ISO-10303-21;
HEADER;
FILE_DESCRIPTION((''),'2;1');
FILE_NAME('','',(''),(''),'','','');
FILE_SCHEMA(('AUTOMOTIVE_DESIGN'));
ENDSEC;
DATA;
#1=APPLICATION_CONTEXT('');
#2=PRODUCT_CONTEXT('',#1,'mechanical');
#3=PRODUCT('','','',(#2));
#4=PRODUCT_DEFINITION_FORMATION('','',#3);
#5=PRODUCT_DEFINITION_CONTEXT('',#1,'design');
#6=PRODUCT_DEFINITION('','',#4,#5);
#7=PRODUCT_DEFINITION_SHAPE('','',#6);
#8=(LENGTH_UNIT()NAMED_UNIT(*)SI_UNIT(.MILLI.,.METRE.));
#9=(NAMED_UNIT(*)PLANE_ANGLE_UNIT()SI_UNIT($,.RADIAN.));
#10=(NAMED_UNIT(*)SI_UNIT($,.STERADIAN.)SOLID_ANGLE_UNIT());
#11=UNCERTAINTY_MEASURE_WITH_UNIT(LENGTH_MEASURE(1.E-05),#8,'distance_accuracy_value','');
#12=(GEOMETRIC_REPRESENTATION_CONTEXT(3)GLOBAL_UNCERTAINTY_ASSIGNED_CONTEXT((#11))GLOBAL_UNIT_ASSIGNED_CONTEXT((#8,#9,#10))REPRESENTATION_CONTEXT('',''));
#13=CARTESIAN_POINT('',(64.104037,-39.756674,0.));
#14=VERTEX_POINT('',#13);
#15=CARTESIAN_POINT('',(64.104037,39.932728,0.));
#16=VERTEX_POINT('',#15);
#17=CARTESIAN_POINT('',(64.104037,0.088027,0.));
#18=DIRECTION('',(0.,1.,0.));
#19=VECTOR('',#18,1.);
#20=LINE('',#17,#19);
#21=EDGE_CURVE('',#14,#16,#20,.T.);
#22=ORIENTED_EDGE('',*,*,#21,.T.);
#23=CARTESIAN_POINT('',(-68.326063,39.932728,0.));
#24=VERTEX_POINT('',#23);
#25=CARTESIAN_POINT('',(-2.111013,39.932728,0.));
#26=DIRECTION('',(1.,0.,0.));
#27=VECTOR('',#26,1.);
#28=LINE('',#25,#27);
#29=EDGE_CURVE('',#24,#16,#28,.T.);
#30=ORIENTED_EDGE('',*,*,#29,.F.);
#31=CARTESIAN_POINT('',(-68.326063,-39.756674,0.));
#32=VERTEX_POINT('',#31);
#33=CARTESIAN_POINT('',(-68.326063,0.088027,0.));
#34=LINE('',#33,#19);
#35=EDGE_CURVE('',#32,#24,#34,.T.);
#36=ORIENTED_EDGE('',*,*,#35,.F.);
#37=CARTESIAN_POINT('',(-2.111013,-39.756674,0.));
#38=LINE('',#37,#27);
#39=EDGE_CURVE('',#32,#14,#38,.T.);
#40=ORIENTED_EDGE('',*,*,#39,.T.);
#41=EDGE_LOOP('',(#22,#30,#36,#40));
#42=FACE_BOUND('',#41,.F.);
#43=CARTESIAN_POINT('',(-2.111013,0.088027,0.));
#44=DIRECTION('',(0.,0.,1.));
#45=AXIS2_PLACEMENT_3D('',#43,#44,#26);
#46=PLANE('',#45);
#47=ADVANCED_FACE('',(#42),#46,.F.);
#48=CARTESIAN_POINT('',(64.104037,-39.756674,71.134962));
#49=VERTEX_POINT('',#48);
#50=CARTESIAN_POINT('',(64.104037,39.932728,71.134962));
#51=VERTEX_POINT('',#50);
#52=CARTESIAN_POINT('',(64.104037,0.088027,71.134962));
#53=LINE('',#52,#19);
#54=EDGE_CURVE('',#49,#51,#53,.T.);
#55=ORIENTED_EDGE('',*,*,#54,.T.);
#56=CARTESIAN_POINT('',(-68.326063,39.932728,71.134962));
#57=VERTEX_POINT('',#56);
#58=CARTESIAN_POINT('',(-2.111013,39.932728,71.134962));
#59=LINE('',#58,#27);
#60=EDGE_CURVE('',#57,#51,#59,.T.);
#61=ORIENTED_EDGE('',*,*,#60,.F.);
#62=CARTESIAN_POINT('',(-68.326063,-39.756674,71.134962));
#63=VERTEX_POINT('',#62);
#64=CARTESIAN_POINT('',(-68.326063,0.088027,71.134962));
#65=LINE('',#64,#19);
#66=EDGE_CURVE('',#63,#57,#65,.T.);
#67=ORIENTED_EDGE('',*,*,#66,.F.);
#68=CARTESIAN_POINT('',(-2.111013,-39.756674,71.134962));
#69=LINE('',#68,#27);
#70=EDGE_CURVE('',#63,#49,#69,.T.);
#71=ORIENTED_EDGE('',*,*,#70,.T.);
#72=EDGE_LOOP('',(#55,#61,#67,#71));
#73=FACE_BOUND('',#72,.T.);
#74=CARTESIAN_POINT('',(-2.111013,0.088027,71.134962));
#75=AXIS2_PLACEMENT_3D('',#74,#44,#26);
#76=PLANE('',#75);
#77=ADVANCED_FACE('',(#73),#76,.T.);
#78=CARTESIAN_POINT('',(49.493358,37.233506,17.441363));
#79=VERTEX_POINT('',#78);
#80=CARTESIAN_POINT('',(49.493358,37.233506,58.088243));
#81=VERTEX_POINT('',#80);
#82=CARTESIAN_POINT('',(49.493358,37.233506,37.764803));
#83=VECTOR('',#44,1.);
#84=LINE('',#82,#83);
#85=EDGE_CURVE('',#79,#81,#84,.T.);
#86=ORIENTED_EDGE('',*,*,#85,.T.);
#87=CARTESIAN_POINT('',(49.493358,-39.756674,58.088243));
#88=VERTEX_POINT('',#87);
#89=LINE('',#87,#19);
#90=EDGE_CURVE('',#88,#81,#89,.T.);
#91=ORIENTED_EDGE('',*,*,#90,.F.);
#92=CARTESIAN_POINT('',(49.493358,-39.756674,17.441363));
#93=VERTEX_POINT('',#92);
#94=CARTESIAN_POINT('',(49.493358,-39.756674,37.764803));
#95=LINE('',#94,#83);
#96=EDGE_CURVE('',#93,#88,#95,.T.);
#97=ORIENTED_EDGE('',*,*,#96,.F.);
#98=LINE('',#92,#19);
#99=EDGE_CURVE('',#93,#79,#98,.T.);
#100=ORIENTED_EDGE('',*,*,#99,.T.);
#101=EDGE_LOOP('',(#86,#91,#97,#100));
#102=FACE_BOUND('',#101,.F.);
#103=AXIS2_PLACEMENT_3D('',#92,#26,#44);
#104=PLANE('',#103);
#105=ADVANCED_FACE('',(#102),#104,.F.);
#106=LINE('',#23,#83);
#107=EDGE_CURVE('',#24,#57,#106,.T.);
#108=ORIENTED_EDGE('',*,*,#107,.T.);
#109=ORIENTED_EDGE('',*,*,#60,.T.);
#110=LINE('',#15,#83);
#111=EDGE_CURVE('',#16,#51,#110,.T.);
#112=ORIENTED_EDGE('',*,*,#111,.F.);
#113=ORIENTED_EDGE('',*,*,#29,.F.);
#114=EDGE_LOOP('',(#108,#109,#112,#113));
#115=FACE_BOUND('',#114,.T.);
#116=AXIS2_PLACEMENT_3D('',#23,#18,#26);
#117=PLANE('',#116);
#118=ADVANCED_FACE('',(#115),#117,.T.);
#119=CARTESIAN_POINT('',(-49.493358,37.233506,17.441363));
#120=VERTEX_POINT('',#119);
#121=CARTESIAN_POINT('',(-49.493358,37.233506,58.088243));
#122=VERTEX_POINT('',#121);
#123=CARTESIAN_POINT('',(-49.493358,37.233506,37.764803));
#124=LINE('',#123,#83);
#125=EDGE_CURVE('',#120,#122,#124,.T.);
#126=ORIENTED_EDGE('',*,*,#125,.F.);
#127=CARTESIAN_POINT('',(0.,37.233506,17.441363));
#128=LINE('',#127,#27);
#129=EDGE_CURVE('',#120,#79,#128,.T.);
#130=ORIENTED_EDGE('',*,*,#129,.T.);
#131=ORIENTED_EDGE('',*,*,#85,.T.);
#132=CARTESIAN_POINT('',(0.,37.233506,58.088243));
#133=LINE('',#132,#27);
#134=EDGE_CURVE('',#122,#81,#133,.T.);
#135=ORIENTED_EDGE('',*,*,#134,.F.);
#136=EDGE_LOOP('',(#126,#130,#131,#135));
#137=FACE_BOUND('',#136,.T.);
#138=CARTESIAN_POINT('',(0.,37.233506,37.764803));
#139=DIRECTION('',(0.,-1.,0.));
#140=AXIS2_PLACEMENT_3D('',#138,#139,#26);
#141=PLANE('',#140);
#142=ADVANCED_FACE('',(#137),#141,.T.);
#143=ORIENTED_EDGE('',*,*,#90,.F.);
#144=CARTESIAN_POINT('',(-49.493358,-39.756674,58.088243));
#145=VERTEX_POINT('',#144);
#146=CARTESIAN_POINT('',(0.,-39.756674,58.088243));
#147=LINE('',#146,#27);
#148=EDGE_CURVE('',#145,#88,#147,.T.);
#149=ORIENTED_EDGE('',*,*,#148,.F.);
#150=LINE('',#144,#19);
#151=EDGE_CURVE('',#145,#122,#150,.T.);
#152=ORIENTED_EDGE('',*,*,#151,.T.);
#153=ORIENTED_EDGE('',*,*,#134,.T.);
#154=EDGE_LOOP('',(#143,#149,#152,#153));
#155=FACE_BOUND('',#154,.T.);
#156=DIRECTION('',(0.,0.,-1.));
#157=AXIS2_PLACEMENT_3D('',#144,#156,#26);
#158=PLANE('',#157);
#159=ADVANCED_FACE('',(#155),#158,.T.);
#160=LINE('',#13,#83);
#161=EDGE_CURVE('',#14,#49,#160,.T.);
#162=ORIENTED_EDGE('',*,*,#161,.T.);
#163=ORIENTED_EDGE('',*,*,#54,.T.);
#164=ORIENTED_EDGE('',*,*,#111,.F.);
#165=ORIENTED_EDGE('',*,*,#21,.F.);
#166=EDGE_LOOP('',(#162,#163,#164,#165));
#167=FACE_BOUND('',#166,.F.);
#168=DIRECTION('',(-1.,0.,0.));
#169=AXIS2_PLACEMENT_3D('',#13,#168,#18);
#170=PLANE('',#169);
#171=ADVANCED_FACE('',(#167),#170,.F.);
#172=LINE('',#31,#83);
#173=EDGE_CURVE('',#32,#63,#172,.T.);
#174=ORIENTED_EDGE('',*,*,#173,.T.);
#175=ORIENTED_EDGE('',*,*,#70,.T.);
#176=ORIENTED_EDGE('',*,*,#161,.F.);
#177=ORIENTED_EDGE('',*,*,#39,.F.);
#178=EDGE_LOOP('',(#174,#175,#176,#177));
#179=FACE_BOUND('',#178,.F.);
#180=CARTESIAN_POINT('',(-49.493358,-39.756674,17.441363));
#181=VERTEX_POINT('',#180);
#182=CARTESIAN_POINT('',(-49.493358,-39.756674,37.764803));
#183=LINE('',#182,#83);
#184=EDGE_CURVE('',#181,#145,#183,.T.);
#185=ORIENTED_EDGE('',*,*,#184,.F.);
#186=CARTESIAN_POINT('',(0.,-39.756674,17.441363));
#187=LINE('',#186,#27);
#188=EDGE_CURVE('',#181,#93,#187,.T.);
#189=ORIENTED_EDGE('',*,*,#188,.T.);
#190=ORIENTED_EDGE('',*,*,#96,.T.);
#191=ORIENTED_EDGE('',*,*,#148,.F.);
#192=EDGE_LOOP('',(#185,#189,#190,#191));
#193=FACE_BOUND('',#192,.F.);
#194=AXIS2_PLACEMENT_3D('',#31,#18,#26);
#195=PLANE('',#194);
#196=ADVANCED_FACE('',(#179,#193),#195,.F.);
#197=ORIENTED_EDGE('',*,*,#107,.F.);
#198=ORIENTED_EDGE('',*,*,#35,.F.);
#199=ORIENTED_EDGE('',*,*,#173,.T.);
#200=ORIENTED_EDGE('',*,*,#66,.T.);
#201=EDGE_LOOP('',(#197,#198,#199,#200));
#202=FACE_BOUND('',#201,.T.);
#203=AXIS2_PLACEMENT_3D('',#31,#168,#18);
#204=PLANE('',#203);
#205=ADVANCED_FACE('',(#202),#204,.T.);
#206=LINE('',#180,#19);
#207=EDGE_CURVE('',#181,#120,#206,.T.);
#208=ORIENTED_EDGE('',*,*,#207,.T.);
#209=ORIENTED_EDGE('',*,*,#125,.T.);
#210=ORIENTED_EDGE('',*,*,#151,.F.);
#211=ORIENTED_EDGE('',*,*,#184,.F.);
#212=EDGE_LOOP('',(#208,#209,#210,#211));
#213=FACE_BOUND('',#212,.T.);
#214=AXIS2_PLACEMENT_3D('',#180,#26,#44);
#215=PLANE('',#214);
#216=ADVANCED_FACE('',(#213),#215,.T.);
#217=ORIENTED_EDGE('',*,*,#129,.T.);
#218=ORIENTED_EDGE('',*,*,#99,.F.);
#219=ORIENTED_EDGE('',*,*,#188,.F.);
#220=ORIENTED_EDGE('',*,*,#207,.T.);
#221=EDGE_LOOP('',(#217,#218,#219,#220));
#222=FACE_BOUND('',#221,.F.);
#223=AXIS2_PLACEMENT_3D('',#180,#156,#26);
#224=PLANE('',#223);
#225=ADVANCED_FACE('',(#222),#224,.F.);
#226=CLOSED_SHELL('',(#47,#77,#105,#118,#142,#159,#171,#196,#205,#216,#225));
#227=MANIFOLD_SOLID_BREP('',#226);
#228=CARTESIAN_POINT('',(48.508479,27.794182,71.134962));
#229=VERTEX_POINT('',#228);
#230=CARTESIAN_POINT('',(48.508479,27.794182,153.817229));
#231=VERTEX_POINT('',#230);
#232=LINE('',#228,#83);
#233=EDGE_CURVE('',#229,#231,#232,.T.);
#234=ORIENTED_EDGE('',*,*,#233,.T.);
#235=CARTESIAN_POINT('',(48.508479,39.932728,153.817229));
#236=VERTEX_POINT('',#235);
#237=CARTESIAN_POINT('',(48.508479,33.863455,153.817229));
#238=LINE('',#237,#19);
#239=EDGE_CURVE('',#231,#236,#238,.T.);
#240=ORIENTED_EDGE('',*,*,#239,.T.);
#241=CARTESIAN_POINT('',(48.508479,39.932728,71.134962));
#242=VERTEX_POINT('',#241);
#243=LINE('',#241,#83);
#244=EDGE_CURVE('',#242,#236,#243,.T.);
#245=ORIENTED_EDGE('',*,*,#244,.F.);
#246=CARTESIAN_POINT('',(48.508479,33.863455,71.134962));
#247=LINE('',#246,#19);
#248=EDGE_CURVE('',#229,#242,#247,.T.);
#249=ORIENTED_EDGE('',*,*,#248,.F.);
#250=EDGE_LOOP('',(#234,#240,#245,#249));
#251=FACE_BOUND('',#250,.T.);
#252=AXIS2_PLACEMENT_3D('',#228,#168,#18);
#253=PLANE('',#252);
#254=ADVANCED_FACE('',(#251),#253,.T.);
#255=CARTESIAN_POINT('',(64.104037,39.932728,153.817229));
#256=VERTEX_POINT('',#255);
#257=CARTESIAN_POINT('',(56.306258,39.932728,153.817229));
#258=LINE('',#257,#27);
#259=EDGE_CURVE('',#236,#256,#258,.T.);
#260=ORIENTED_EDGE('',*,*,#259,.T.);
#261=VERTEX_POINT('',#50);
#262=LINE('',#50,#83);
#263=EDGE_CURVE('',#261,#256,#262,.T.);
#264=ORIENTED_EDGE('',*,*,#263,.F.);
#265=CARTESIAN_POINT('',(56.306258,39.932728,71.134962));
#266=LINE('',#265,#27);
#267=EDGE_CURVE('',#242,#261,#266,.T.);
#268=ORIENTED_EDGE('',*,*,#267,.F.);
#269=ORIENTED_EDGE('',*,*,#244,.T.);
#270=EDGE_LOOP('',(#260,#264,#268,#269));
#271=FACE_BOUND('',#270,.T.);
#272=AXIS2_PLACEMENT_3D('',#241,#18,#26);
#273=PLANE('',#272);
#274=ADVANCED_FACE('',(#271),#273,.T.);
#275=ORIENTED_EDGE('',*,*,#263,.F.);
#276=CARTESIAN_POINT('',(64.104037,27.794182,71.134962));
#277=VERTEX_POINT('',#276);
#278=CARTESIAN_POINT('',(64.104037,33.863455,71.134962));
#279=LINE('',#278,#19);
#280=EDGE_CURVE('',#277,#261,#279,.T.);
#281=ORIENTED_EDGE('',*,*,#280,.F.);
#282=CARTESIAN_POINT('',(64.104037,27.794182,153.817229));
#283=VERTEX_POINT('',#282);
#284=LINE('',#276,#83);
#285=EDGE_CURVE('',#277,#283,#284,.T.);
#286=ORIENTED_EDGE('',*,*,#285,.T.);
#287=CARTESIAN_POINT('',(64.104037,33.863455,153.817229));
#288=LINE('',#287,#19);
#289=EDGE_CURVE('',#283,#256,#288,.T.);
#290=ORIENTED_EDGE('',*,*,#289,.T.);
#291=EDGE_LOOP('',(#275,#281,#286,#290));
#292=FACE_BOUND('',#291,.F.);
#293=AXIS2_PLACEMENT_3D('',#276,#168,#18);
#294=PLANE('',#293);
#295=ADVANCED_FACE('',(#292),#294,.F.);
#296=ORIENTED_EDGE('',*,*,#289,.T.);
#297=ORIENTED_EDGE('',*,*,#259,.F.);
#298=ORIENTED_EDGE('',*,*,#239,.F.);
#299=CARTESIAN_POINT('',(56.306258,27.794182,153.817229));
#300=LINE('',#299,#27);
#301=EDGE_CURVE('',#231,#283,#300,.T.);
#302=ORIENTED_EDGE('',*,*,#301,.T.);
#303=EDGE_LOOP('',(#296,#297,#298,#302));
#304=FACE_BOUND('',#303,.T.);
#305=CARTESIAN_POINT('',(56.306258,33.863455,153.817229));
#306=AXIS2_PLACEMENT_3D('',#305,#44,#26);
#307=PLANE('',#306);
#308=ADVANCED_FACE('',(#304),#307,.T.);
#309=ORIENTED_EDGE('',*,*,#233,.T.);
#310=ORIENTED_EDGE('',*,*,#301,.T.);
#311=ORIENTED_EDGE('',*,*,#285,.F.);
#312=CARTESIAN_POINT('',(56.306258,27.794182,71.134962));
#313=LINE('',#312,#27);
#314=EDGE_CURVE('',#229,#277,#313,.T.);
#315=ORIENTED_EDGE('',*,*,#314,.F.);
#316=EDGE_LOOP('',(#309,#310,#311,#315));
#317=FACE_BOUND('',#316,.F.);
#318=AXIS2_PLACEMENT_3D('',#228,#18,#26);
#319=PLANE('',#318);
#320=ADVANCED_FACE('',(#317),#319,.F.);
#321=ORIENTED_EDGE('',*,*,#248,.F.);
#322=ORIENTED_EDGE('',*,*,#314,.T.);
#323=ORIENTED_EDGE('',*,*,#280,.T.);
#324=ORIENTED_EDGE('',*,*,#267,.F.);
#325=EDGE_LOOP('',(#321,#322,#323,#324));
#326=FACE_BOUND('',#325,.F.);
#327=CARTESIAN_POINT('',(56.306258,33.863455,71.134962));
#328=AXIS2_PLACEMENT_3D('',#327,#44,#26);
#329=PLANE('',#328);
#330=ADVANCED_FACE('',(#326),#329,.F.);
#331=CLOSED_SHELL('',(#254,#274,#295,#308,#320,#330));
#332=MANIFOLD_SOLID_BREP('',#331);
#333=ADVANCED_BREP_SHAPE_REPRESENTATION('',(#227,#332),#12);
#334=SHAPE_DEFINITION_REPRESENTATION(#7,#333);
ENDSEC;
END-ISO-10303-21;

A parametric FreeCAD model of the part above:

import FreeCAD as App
import Part
import Sketcher
from FreeCAD import Vector

doc = App.newDocument("Part")
params = doc.addObject("Spreadsheet::Sheet", "Params")
for row, (alias, value) in enumerate([
    ("pad1_length", "71.134962 mm"),
    ("pocket1_length", "76.99018 mm"),
    ("pad2_length", "82.682267 mm"),
], start=1):
    params.set(f"A{row}", alias)
    params.set(f"B{row}", "=" + value)
    params.setAlias(f"B{row}", alias)

body = doc.addObject("PartDesign::Body", "Body")

sketch1 = body.newObject("Sketcher::SketchObject", "Sketch")
sketch1.AttachmentSupport = (doc.getObject("XY_Plane"), [""])
sketch1.MapMode = "FlatFace"
sketch1.addGeometry([
    Part.LineSegment(Vector(-68, 40, 0), Vector(-68, -40, 0)),
    Part.LineSegment(Vector(-68, -40, 0), Vector(64, -40, 0)),
    Part.LineSegment(Vector(64, -40, 0), Vector(64, 40, 0)),
    Part.LineSegment(Vector(64, 40, 0), Vector(-68, 40, 0)),
], False)
sketch1.addConstraint([
    Sketcher.Constraint("Coincident", 0, 2, 1, 1),
    Sketcher.Constraint("Coincident", 1, 2, 2, 1),
    Sketcher.Constraint("Coincident", 2, 2, 3, 1),
    Sketcher.Constraint("Coincident", 3, 2, 0, 1),
    Sketcher.Constraint("Vertical", 0),
    Sketcher.Constraint("Horizontal", 1),
    Sketcher.Constraint("Vertical", 2),
    Sketcher.Constraint("Horizontal", 3),
    Sketcher.Constraint("DistanceX", 1, 1, 1, 2, 132.4301),
    Sketcher.Constraint("DistanceY", 0, 2, 0, 1, 79.689402),
    Sketcher.Constraint("DistanceX", 0, 2, -1, 1, 68.326063),
    Sketcher.Constraint("DistanceY", 0, 2, -1, 1, 39.756674),
])
pad1 = body.newObject("PartDesign::Pad", "Pad")
pad1.Profile = sketch1
pad1.setExpression("Length", "Params.pad1_length")

sketch2 = body.newObject("Sketcher::SketchObject", "Sketch001")
sketch2.AttachmentSupport = (doc.getObject("XZ_Plane"), [""])
sketch2.MapMode = "FlatFace"
sketch2.AttachmentOffset = App.Placement(Vector(0, 0, 39.756674), App.Rotation())
sketch2.addGeometry([
    Part.LineSegment(Vector(-49, 58, 0), Vector(-49, 17, 0)),
    Part.LineSegment(Vector(-49, 17, 0), Vector(49, 17, 0)),
    Part.LineSegment(Vector(49, 17, 0), Vector(49, 58, 0)),
    Part.LineSegment(Vector(49, 58, 0), Vector(-49, 58, 0)),
], False)
sketch2.addConstraint([
    Sketcher.Constraint("Coincident", 0, 2, 1, 1),
    Sketcher.Constraint("Coincident", 1, 2, 2, 1),
    Sketcher.Constraint("Coincident", 2, 2, 3, 1),
    Sketcher.Constraint("Coincident", 3, 2, 0, 1),
    Sketcher.Constraint("Vertical", 0),
    Sketcher.Constraint("Horizontal", 1),
    Sketcher.Constraint("Vertical", 2),
    Sketcher.Constraint("Horizontal", 3),
    Sketcher.Constraint("DistanceY", 0, 2, 0, 1, 40.646881),
    Sketcher.Constraint("DistanceX", 1, 1, 1, 2, 98.986716),
    Sketcher.Constraint("DistanceX", 0, 2, -1, 1, 49.493358),
    Sketcher.Constraint("DistanceY", -1, 1, 0, 2, 17.441363),
])
pocket1 = body.newObject("PartDesign::Pocket", "Pocket")
pocket1.Profile = sketch2
pocket1.setExpression("Length", "Params.pocket1_length")
body2 = doc.addObject("PartDesign::Body", "Body001")

sketch3 = body2.newObject("Sketcher::SketchObject", "Sketch002")
sketch3.AttachmentSupport = (doc.getObject("XY_Plane001"), [""])
sketch3.MapMode = "FlatFace"
sketch3.AttachmentOffset = App.Placement(Vector(0, 0, 71.134962), App.Rotation())
sketch3.addGeometry([
    Part.LineSegment(Vector(49, 40, 0), Vector(49, 28, 0)),
    Part.LineSegment(Vector(49, 28, 0), Vector(64, 28, 0)),
    Part.LineSegment(Vector(64, 28, 0), Vector(64, 40, 0)),
    Part.LineSegment(Vector(64, 40, 0), Vector(49, 40, 0)),
], False)
sketch3.addConstraint([
    Sketcher.Constraint("Coincident", 0, 2, 1, 1),
    Sketcher.Constraint("Coincident", 1, 2, 2, 1),
    Sketcher.Constraint("Coincident", 2, 2, 3, 1),
    Sketcher.Constraint("Coincident", 3, 2, 0, 1),
    Sketcher.Constraint("Vertical", 0),
    Sketcher.Constraint("Horizontal", 1),
    Sketcher.Constraint("Vertical", 2),
    Sketcher.Constraint("Horizontal", 3),
    Sketcher.Constraint("DistanceX", 1, 1, 1, 2, 15.595557),
    Sketcher.Constraint("DistanceY", 0, 2, 0, 1, 12.138546),
    Sketcher.Constraint("DistanceX", -1, 1, 0, 2, 48.508479),
    Sketcher.Constraint("DistanceY", -1, 1, 0, 2, 27.794182),
])
pad2 = body2.newObject("PartDesign::Pad", "Pad001")
pad2.Profile = sketch3
pad2.setExpression("Length", "Params.pad2_length")

doc.recompute()
